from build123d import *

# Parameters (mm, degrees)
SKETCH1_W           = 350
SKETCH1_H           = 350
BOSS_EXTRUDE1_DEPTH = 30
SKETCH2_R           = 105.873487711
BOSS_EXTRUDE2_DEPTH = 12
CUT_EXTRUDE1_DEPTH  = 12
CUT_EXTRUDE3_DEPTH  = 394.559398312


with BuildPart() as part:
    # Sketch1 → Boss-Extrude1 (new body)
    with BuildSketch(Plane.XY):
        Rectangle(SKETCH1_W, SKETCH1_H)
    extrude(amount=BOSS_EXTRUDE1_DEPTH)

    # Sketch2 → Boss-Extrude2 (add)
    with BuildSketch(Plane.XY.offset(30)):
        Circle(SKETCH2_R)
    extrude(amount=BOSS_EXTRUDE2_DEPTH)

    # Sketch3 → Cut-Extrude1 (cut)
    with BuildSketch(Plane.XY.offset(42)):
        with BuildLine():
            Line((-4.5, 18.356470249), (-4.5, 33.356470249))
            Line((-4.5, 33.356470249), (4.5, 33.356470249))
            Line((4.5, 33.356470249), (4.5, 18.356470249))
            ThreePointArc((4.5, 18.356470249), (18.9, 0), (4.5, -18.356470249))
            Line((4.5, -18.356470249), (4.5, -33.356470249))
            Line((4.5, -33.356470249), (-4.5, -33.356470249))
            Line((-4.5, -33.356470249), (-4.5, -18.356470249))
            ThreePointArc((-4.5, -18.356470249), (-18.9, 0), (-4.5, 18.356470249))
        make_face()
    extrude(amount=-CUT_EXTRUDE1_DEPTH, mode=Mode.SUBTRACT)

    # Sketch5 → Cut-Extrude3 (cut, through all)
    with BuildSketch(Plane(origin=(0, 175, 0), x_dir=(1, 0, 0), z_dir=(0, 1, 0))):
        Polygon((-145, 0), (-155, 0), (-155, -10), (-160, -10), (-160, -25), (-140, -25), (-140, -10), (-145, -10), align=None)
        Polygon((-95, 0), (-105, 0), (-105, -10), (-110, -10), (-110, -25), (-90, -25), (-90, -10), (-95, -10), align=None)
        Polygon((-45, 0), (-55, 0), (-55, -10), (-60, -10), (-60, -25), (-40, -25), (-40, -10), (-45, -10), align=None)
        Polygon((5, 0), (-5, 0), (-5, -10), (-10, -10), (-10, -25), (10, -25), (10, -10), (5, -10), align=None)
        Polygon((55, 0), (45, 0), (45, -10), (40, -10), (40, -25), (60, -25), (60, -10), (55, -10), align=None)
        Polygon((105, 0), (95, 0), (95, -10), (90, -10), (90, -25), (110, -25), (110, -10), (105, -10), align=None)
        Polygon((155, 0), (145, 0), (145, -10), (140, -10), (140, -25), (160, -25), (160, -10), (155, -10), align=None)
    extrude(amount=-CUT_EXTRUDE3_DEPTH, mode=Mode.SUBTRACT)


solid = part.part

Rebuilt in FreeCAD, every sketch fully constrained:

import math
import FreeCAD as App
import Part
import Sketcher


def add_polygon(sketch, points):
    """Adds a closed chain of lines whose ends are joined by coincident constraints."""
    first, n = sketch.GeometryCount, len(points)
    for a, b in zip(points, points[1:] + points[:1]):
        sketch.addGeometry(Part.LineSegment(App.Vector(*a, 0), App.Vector(*b, 0)), False)
    for i in range(n):
        sketch.addConstraint(Sketcher.Constraint("Coincident", first + i, 2, first + (i + 1) % n, 1))

doc = App.newDocument("Part")
params = doc.addObject("Spreadsheet::Sheet", "Params")
for row, (alias, value) in enumerate([
    ("sketch1_width", "350 mm"),
    ("pad1_length", "30 mm"),
    ("pad2_length", "12 mm"),
    ("sketch3_radius", "18.9 mm"),
    ("sketch3_width", "9 mm"),
    ("sketch3_height", "15 mm"),
    ("pocket1_length", "12 mm"),
    ("sketch4_width", "10 mm"),
    ("sketch4_width2", "5 mm"),
    ("sketch4_height", "15 mm"),
], start=1):
    params.set(f"A{row}", alias)
    params.set(f"B{row}", "=" + value)
    params.setAlias(f"B{row}", alias)

body = doc.addObject("PartDesign::Body", "Body")

# Sketch on XY plane
sketch1 = body.newObject("Sketcher::SketchObject", "Sketch")
sketch1.AttachmentSupport = (doc.getObject("XY_Plane"), [""])
sketch1.MapMode = "FlatFace"
add_polygon(sketch1, [(-175, 175), (-175, -175), (175, -175), (175, 175)])  # lines 0-3
sketch1.addConstraint(Sketcher.Constraint("Vertical", 0))
sketch1.addConstraint(Sketcher.Constraint("Horizontal", 1))
sketch1.addConstraint(Sketcher.Constraint("Vertical", 2))
sketch1.addConstraint(Sketcher.Constraint("Horizontal", 3))
sketch1.addConstraint(Sketcher.Constraint("Symmetric", 0, 2, 2, 2, -1, 1))
sketch1.addConstraint(Sketcher.Constraint("Equal", 3, 0))
sketch1.addConstraint(Sketcher.Constraint("DistanceX", 1, 1, 1, 2, 350.0))
sketch1.setExpression("Constraints[10]", "Params.sketch1_width")
pad1 = body.newObject("PartDesign::Pad", "Pad")
pad1.Profile = sketch1
pad1.setExpression("Length", "Params.pad1_length")

# Sketch on XY plane
sketch2 = body.newObject("Sketcher::SketchObject", "Sketch001")
sketch2.AttachmentSupport = (doc.getObject("XY_Plane"), [""])
sketch2.MapMode = "FlatFace"
sketch2.AttachmentOffset = App.Placement(App.Vector(0, 0, 30), App.Rotation())
sketch2.addGeometry(Part.Circle(App.Vector(0, 0, 0), App.Vector(0, 0, 1), 106), False)
sketch2.addConstraint(Sketcher.Constraint("Coincident", 0, 3, -1, 1))
sketch2.addConstraint(Sketcher.Constraint("Diameter", 0, 211.746975))
pad2 = body.newObject("PartDesign::Pad", "Pad001")
pad2.Profile = sketch2
pad2.setExpression("Length", "Params.pad2_length")

# Sketch on XY plane
sketch3 = body.newObject("Sketcher::SketchObject", "Sketch002")
sketch3.AttachmentSupport = (doc.getObject("XY_Plane"), [""])
sketch3.MapMode = "FlatFace"
sketch3.AttachmentOffset = App.Placement(App.Vector(0, 0, 42), App.Rotation())
sketch3.addGeometry(Part.LineSegment(App.Vector(-4, 33, 0), App.Vector(-4, 18, 0)), False)
sketch3.addGeometry(Part.ArcOfCircle(Part.Circle(App.Vector(0, 0, 0), App.Vector(0, 0, 1), 19), math.radians(104), math.radians(256)), False)
sketch3.addGeometry(Part.LineSegment(App.Vector(-4, -18, 0), App.Vector(-4, -33, 0)), False)
sketch3.addGeometry(Part.LineSegment(App.Vector(-4, -33, 0), App.Vector(4, -33, 0)), False)
sketch3.addGeometry(Part.LineSegment(App.Vector(4, -33, 0), App.Vector(4, -18, 0)), False)
sketch3.addGeometry(Part.ArcOfCircle(Part.Circle(App.Vector(0, 0, 0), App.Vector(0, 0, 1), 19), math.radians(-76), math.radians(76)), False)
sketch3.addGeometry(Part.LineSegment(App.Vector(4, 18, 0), App.Vector(4, 33, 0)), False)
sketch3.addGeometry(Part.LineSegment(App.Vector(4, 33, 0), App.Vector(-4, 33, 0)), False)
sketch3.addConstraint(Sketcher.Constraint("Coincident", 0, 2, 1, 1))
sketch3.addConstraint(Sketcher.Constraint("Coincident", 1, 2, 2, 1))
sketch3.addConstraint(Sketcher.Constraint("Coincident", 2, 2, 3, 1))
sketch3.addConstraint(Sketcher.Constraint("Coincident", 3, 2, 4, 1))
sketch3.addConstraint(Sketcher.Constraint("Coincident", 4, 2, 5, 1))
sketch3.addConstraint(Sketcher.Constraint("Coincident", 5, 2, 6, 1))
sketch3.addConstraint(Sketcher.Constraint("Coincident", 6, 2, 7, 1))
sketch3.addConstraint(Sketcher.Constraint("Coincident", 7, 2, 0, 1))
sketch3.addConstraint(Sketcher.Constraint("Vertical", 0))
sketch3.addConstraint(Sketcher.Constraint("Vertical", 2))
sketch3.addConstraint(Sketcher.Constraint("Horizontal", 3))
sketch3.addConstraint(Sketcher.Constraint("Vertical", 4))
sketch3.addConstraint(Sketcher.Constraint("Vertical", 6))
sketch3.addConstraint(Sketcher.Constraint("Horizontal", 7))
sketch3.addConstraint(Sketcher.Constraint("Coincident", 1, 3, -1, 1))
sketch3.addConstraint(Sketcher.Constraint("Coincident", 5, 3, -1, 1))
sketch3.addConstraint(Sketcher.Constraint("Equal", 1, 5))
sketch3.addConstraint(Sketcher.Constraint("Symmetric", 2, 2, 6, 2, -1, 1))
sketch3.addConstraint(Sketcher.Constraint("Horizontal", 1, 2, 4, 2))
sketch3.addConstraint(Sketcher.Constraint("Horizontal", 0, 2, 5, 2))
sketch3.addConstraint(Sketcher.Constraint("Radius", 1, 18.9))
sketch3.addConstraint(Sketcher.Constraint("DistanceX", 3, 1, 3, 2, 9.0))
sketch3.addConstraint(Sketcher.Constraint("DistanceY", 0, 2, 0, 1, 15.0))
sketch3.setExpression("Constraints[20]", "Params.sketch3_radius")
sketch3.setExpression("Constraints[21]", "Params.sketch3_width")
sketch3.setExpression("Constraints[22]", "Params.sketch3_height")
pocket1 = body.newObject("PartDesign::Pocket", "Pocket")
pocket1.Profile = sketch3
pocket1.setExpression("Length", "Params.pocket1_length")

# Sketch on XZ plane
sketch4 = body.newObject("Sketcher::SketchObject", "Sketch003")
sketch4.AttachmentSupport = (doc.getObject("XZ_Plane"), [""])
sketch4.MapMode = "FlatFace"
sketch4.AttachmentOffset = App.Placement(App.Vector(0, 0, -175), App.Rotation())
add_polygon(sketch4, [(-145, 0), (-155, 0), (-155, 10), (-160, 10), (-160, 25), (-140, 25), (-140, 10), (-145, 10)])  # lines 0-7
add_polygon(sketch4, [(-95, 0), (-105, 0), (-105, 10), (-110, 10), (-110, 25), (-90, 25), (-90, 10), (-95, 10)])  # lines 8-15
add_polygon(sketch4, [(-45, 0), (-55, 0), (-55, 10), (-60, 10), (-60, 25), (-40, 25), (-40, 10), (-45, 10)])  # lines 16-23
add_polygon(sketch4, [(5, 0), (-5, 0), (-5, 10), (-10, 10), (-10, 25), (10, 25), (10, 10), (5, 10)])  # lines 24-31
add_polygon(sketch4, [(55, 0), (45, 0), (45, 10), (40, 10), (40, 25), (60, 25), (60, 10), (55, 10)])  # lines 32-39
add_polygon(sketch4, [(105, 0), (95, 0), (95, 10), (90, 10), (90, 25), (110, 25), (110, 10), (105, 10)])  # lines 40-47
add_polygon(sketch4, [(155, 0), (145, 0), (145, 10), (140, 10), (140, 25), (160, 25), (160, 10), (155, 10)])  # lines 48-55
sketch4.addConstraint(Sketcher.Constraint("Horizontal", 0))
sketch4.addConstraint(Sketcher.Constraint("Vertical", 1))
sketch4.addConstraint(Sketcher.Constraint("Horizontal", 2))
sketch4.addConstraint(Sketcher.Constraint("Vertical", 3))
sketch4.addConstraint(Sketcher.Constraint("Horizontal", 4))
sketch4.addConstraint(Sketcher.Constraint("Vertical", 5))
sketch4.addConstraint(Sketcher.Constraint("Horizontal", 6))
sketch4.addConstraint(Sketcher.Constraint("Vertical", 7))
sketch4.addConstraint(Sketcher.Constraint("Horizontal", 8))
sketch4.addConstraint(Sketcher.Constraint("Vertical", 9))
sketch4.addConstraint(Sketcher.Constraint("Horizontal", 10))
sketch4.addConstraint(Sketcher.Constraint("Vertical", 11))
sketch4.addConstraint(Sketcher.Constraint("Horizontal", 12))
sketch4.addConstraint(Sketcher.Constraint("Vertical", 13))
sketch4.addConstraint(Sketcher.Constraint("Horizontal", 14))
sketch4.addConstraint(Sketcher.Constraint("Vertical", 15))
sketch4.addConstraint(Sketcher.Constraint("Horizontal", 16))
sketch4.addConstraint(Sketcher.Constraint("Vertical", 17))
sketch4.addConstraint(Sketcher.Constraint("Horizontal", 18))
sketch4.addConstraint(Sketcher.Constraint("Vertical", 19))
sketch4.addConstraint(Sketcher.Constraint("Horizontal", 20))
sketch4.addConstraint(Sketcher.Constraint("Vertical", 21))
sketch4.addConstraint(Sketcher.Constraint("Horizontal", 22))
sketch4.addConstraint(Sketcher.Constraint("Vertical", 23))
sketch4.addConstraint(Sketcher.Constraint("Horizontal", 24))
sketch4.addConstraint(Sketcher.Constraint("Vertical", 25))
sketch4.addConstraint(Sketcher.Constraint("Horizontal", 26))
sketch4.addConstraint(Sketcher.Constraint("Vertical", 27))
sketch4.addConstraint(Sketcher.Constraint("Horizontal", 28))
sketch4.addConstraint(Sketcher.Constraint("Vertical", 29))
sketch4.addConstraint(Sketcher.Constraint("Horizontal", 30))
sketch4.addConstraint(Sketcher.Constraint("Vertical", 31))
sketch4.addConstraint(Sketcher.Constraint("Horizontal", 32))
sketch4.addConstraint(Sketcher.Constraint("Vertical", 33))
sketch4.addConstraint(Sketcher.Constraint("Horizontal", 34))
sketch4.addConstraint(Sketcher.Constraint("Vertical", 35))
sketch4.addConstraint(Sketcher.Constraint("Horizontal", 36))
sketch4.addConstraint(Sketcher.Constraint("Vertical", 37))
sketch4.addConstraint(Sketcher.Constraint("Horizontal", 38))
sketch4.addConstraint(Sketcher.Constraint("Vertical", 39))
sketch4.addConstraint(Sketcher.Constraint("Horizontal", 40))
sketch4.addConstraint(Sketcher.Constraint("Vertical", 41))
sketch4.addConstraint(Sketcher.Constraint("Horizontal", 42))
sketch4.addConstraint(Sketcher.Constraint("Vertical", 43))
sketch4.addConstraint(Sketcher.Constraint("Horizontal", 44))
sketch4.addConstraint(Sketcher.Constraint("Vertical", 45))
sketch4.addConstraint(Sketcher.Constraint("Horizontal", 46))
sketch4.addConstraint(Sketcher.Constraint("Vertical", 47))
sketch4.addConstraint(Sketcher.Constraint("Horizontal", 48))
sketch4.addConstraint(Sketcher.Constraint("Vertical", 49))
sketch4.addConstraint(Sketcher.Constraint("Horizontal", 50))
sketch4.addConstraint(Sketcher.Constraint("Vertical", 51))
sketch4.addConstraint(Sketcher.Constraint("Horizontal", 52))
sketch4.addConstraint(Sketcher.Constraint("Vertical", 53))
sketch4.addConstraint(Sketcher.Constraint("Horizontal", 54))
sketch4.addConstraint(Sketcher.Constraint("Vertical", 55))
sketch4.addConstraint(Sketcher.Constraint("Symmetric", 24, 2, 31, 2, -1, 1))
sketch4.addConstraint(Sketcher.Constraint("Symmetric", 23, 2, 32, 2, -1, 1))
sketch4.addConstraint(Sketcher.Constraint("Symmetric", 15, 2, 40, 2, -1, 1))
sketch4.addConstraint(Sketcher.Constraint("Symmetric", 7, 2, 48, 2, -1, 1))
sketch4.addConstraint(Sketcher.Constraint("Symmetric", 26, 2, 29, 2, -2))
sketch4.addConstraint(Sketcher.Constraint("Symmetric", 21, 2, 34, 2, -2))
sketch4.addConstraint(Sketcher.Constraint("Symmetric", 19, 2, 36, 2, -2))
sketch4.addConstraint(Sketcher.Constraint("Symmetric", 17, 2, 38, 2, -2))
sketch4.addConstraint(Sketcher.Constraint("Symmetric", 13, 2, 42, 2, -2))
sketch4.addConstraint(Sketcher.Constraint("Symmetric", 11, 2, 44, 2, -2))
sketch4.addConstraint(Sketcher.Constraint("Symmetric", 9, 2, 46, 2, -2))
sketch4.addConstraint(Sketcher.Constraint("Symmetric", 5, 2, 50, 2, -2))
sketch4.addConstraint(Sketcher.Constraint("Symmetric", 3, 2, 52, 2, -2))
sketch4.addConstraint(Sketcher.Constraint("Symmetric", 1, 2, 54, 2, -2))
sketch4.addConstraint(Sketcher.Constraint("PointOnObject", 0, 2, -1))
sketch4.addConstraint(Sketcher.Constraint("PointOnObject", 8, 2, -1))
sketch4.addConstraint(Sketcher.Constraint("PointOnObject", 16, 2, -1))
sketch4.addConstraint(Sketcher.Constraint("Horizontal", 2, 2, 5, 2))
sketch4.addConstraint(Sketcher.Constraint("Horizontal", 6, 2, 9, 2))
sketch4.addConstraint(Sketcher.Constraint("Horizontal", 4, 2, 11, 2))
sketch4.addConstraint(Sketcher.Constraint("Horizontal", 10, 2, 13, 2))
sketch4.addConstraint(Sketcher.Constraint("Horizontal", 14, 2, 17, 2))
sketch4.addConstraint(Sketcher.Constraint("Horizontal", 12, 2, 19, 2))
sketch4.addConstraint(Sketcher.Constraint("Horizontal", 18, 2, 21, 2))
sketch4.addConstraint(Sketcher.Constraint("Horizontal", 22, 2, 25, 2))
sketch4.addConstraint(Sketcher.Constraint("Horizontal", 20, 2, 27, 2))
sketch4.addConstraint(Sketcher.Constraint("Equal", 2, 6))
sketch4.addConstraint(Sketcher.Constraint("Equal", 0, 8))
sketch4.addConstraint(Sketcher.Constraint("Equal", 6, 10))
sketch4.addConstraint(Sketcher.Constraint("Equal", 4, 12))
sketch4.addConstraint(Sketcher.Constraint("Equal", 8, 16))
sketch4.addConstraint(Sketcher.Constraint("Equal", 14, 18))
sketch4.addConstraint(Sketcher.Constraint("Equal", 12, 20))
sketch4.addConstraint(Sketcher.Constraint("Equal", 16, 24))
sketch4.addConstraint(Sketcher.Constraint("Equal", 22, 26))
sketch4.addConstraint(Sketcher.Constraint("Equal", 48, 1))
sketch4.addConstraint(Sketcher.Constraint("DistanceX", 0, 2, 0, 1, 10.0))
sketch4.addConstraint(Sketcher.Constraint("DistanceX", 2, 2, 2, 1, 5.0))
sketch4.addConstraint(Sketcher.Constraint("DistanceY", 3, 1, 3, 2, 15.0))
sketch4.addConstraint(Sketcher.Constraint("DistanceX", 0, 2, -1, 1, 155.0))
sketch4.addConstraint(Sketcher.Constraint("DistanceX", 8, 2, -1, 1, 105.0))
sketch4.addConstraint(Sketcher.Constraint("DistanceX", 16, 2, -1, 1, 55.0))
sketch4.setExpression("Constraints[148]", "Params.sketch4_width")
sketch4.setExpression("Constraints[149]", "Params.sketch4_width2")
sketch4.setExpression("Constraints[150]", "Params.sketch4_height")
pocket2 = body.newObject("PartDesign::Pocket", "Pocket001")
pocket2.Profile = sketch4
pocket2.Type = "ThroughAll"
pocket2.Reversed = True

doc.recompute()
